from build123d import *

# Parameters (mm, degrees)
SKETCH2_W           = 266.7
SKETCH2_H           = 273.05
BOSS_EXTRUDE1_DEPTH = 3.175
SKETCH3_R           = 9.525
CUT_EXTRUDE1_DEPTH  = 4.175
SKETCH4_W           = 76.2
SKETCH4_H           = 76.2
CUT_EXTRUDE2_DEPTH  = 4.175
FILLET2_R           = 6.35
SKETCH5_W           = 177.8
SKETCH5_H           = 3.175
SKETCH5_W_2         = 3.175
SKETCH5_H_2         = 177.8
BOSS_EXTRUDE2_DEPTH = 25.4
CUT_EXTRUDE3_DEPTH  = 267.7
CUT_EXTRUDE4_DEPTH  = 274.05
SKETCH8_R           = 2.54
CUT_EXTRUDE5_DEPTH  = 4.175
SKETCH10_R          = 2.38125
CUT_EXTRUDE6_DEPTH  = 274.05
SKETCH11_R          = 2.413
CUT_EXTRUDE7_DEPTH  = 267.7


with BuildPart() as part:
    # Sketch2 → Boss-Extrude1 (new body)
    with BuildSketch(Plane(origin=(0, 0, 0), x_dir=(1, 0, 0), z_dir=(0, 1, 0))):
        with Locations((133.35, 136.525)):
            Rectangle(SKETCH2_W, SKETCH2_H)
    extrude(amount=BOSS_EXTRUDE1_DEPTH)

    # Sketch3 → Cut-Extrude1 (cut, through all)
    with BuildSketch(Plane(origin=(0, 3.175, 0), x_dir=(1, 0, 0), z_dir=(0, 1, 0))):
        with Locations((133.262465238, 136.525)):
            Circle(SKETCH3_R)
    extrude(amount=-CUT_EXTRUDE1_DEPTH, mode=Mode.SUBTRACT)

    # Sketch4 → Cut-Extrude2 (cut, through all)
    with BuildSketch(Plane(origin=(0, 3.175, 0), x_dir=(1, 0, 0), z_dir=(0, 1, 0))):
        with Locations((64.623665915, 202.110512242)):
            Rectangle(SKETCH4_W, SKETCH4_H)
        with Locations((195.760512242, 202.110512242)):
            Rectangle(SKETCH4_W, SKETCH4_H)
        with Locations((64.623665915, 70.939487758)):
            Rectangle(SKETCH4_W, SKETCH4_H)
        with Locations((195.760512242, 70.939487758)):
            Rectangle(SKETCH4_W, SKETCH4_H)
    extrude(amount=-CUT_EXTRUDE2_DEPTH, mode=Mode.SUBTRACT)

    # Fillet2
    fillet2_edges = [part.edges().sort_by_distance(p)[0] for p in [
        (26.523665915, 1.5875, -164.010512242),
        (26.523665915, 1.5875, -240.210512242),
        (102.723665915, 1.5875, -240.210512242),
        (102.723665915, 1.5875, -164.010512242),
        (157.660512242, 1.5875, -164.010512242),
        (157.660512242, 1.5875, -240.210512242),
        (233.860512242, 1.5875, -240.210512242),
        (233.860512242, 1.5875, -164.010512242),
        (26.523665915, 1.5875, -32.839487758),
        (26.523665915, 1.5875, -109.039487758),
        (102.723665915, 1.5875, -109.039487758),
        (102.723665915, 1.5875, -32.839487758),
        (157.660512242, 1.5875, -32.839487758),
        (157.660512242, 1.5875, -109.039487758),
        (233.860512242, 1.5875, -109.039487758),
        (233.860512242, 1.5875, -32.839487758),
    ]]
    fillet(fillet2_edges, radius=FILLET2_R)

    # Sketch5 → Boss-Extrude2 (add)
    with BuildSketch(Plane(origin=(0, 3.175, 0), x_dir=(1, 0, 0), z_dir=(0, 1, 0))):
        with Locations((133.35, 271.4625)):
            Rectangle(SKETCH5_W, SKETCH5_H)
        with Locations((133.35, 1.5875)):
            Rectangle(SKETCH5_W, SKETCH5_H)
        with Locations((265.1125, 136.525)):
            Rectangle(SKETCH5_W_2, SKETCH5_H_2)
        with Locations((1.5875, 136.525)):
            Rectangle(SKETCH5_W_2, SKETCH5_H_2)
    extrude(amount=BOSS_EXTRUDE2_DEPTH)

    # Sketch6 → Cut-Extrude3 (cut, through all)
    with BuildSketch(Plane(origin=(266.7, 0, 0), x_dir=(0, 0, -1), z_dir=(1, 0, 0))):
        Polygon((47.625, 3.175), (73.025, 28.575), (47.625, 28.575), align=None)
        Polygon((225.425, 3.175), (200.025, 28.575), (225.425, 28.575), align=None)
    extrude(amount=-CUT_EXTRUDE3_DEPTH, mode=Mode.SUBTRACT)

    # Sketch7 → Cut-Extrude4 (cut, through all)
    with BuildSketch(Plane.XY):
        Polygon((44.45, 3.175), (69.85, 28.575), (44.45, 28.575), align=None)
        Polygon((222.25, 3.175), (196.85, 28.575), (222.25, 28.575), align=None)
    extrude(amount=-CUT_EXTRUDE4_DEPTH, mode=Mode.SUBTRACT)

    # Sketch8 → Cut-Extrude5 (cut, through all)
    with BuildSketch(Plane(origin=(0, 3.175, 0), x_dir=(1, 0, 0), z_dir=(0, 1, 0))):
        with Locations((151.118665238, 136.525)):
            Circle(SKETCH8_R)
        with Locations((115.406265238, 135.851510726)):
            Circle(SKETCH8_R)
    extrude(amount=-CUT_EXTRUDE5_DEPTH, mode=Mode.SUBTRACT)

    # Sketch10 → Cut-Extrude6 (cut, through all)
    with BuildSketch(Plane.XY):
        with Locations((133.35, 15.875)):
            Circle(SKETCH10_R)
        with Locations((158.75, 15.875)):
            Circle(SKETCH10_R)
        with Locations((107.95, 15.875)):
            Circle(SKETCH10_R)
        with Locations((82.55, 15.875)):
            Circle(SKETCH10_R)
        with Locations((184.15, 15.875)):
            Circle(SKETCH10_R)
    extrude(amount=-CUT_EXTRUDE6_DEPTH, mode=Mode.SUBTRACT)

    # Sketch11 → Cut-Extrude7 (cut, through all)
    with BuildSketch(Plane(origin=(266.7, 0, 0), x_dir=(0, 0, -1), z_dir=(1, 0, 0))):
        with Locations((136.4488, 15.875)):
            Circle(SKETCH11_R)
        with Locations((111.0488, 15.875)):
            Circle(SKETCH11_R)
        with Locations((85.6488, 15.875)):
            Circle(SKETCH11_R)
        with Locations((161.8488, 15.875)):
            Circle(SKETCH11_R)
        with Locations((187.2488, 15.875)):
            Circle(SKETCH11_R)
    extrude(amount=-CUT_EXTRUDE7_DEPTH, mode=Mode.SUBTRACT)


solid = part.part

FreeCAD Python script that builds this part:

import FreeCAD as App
import Part
import Sketcher

V = App.Vector
Q = App.Units.Quantity


def edges_at(feature, points):
    """Names of the edges that pass closest to the given points."""
    edges = feature.Shape.Edges
    near = lambda p: min(range(len(edges)), key=lambda i: edges[i].distToShape(Part.Vertex(*p))[0])
    return sorted({f"Edge{near(p) + 1}" for p in points})


def add_polygon(sketch, points):
    """Adds a closed chain of lines whose ends are joined by coincident constraints."""
    first, n = sketch.GeometryCount, len(points)
    for a, b in zip(points, points[1:] + points[:1]):
        sketch.addGeometry(Part.LineSegment(App.Vector(*a, 0), App.Vector(*b, 0)), False)
    for i in range(n):
        sketch.addConstraint(Sketcher.Constraint("Coincident", first + i, 2, first + (i + 1) % n, 1))

doc = App.newDocument("Part")
params = doc.addObject("Spreadsheet::Sheet", "Params")
for row, (alias, value) in enumerate([
    ("sketch1_width", "10.5 in"),
    ("sketch1_height", "10.75 in"),
    ("pad1_length", "0.125 in"),
    ("sketch2_diameter", "0.75 in"),
    ("sketch3_width", "3 in"),
    ("fillet_radius", "0.25 in"),
    ("sketch4_width", "7 in"),
    ("sketch4_width2", "0.125 in"),
    ("pad2_length", "1 in"),
    ("sketch5_width", "1 in"),
    ("sketch6_width", "1 in"),
    ("sketch7_diameter", "0.2 in"),
    ("sketch8_diameter", "0.1875 in"),
    ("sketch9_diameter", "0.19 in"),
], start=1):
    params.set(f"A{row}", alias)
    params.set(f"B{row}", "=" + value)
    params.setAlias(f"B{row}", alias)

body = doc.addObject("PartDesign::Body", "Body")

sketch1 = body.newObject("Sketcher::SketchObject", "Sketch")
sketch1.AttachmentSupport = (doc.getObject("XZ_Plane"), [""])
sketch1.MapMode = "FlatFace"
add_polygon(sketch1, [(0, -273), (0, 0), (267, 0), (267, -273)])
sketch1.addConstraint([
    Sketcher.Constraint("Vertical", 0),
    Sketcher.Constraint("Horizontal", 1),
    Sketcher.Constraint("Vertical", 2),
    Sketcher.Constraint("Horizontal", 3),
    Sketcher.Constraint("Coincident", 0, 2, -1, 1),
    Sketcher.Constraint("DistanceX", 1, 1, 1, 2, Q("10.5 in")),
    Sketcher.Constraint("DistanceY", 0, 1, 0, 2, Q("10.75 in")),
])
sketch1.setExpression("Constraints[9]", "Params.sketch1_width")
sketch1.setExpression("Constraints[10]", "Params.sketch1_height")
pad1 = body.newObject("PartDesign::Pad", "Pad")
pad1.Profile = sketch1
pad1.setExpression("Length", "Params.pad1_length")
pad1.Reversed = True

sketch2 = body.newObject("Sketcher::SketchObject", "Sketch001")
sketch2.AttachmentSupport = (doc.getObject("XZ_Plane"), [""])
sketch2.MapMode = "FlatFace"
sketch2.AttachmentOffset = App.Placement(V(0, 0, -0.125 * 25.4), App.Rotation())
sketch2.addGeometry(Part.Circle(V(133, -137, 0), V(0, 0, 1), 10), False)
sketch2.addConstraint([
    Sketcher.Constraint("Diameter", 0, Q("0.75 in")),
    Sketcher.Constraint("DistanceY", 0, 3, -1, 1, Q("5.375 in")),
    Sketcher.Constraint("DistanceX", -1, 1, 0, 3, 133.262465),
])
sketch2.setExpression("Constraints[0]", "Params.sketch2_diameter")
pocket1 = body.newObject("PartDesign::Pocket", "Pocket")
pocket1.Profile = sketch2
pocket1.Type = "ThroughAll"
pocket1.Reversed = True

sketch3 = body.newObject("Sketcher::SketchObject", "Sketch002")
sketch3.AttachmentSupport = (doc.getObject("XZ_Plane"), [""])
sketch3.MapMode = "FlatFace"
sketch3.AttachmentOffset = App.Placement(V(0, 0, -0.125 * 25.4), App.Rotation())
add_polygon(sketch3, [(27, -240), (27, -164), (103, -164), (103, -240)])
add_polygon(sketch3, [(158, -240), (158, -164), (234, -164), (234, -240)])
add_polygon(sketch3, [(27, -109), (27, -33), (103, -33), (103, -109)])
add_polygon(sketch3, [(158, -109), (158, -33), (234, -33), (234, -109)])
sketch3.addConstraint([
    Sketcher.Constraint("Vertical", 0),
    Sketcher.Constraint("Horizontal", 1),
    Sketcher.Constraint("Vertical", 2),
    Sketcher.Constraint("Horizontal", 3),
    Sketcher.Constraint("Vertical", 4),
    Sketcher.Constraint("Horizontal", 5),
    Sketcher.Constraint("Vertical", 6),
    Sketcher.Constraint("Horizontal", 7),
    Sketcher.Constraint("Vertical", 8),
    Sketcher.Constraint("Horizontal", 9),
    Sketcher.Constraint("Vertical", 10),
    Sketcher.Constraint("Horizontal", 11),
    Sketcher.Constraint("Vertical", 12),
    Sketcher.Constraint("Horizontal", 13),
    Sketcher.Constraint("Vertical", 14),
    Sketcher.Constraint("Horizontal", 15),
    Sketcher.Constraint("Horizontal", 1, 2, 4, 2),
    Sketcher.Constraint("Horizontal", 3, 2, 6, 2),
    Sketcher.Constraint("Horizontal", 9, 2, 12, 2),
    Sketcher.Constraint("Horizontal", 11, 2, 14, 2),
    Sketcher.Constraint("Vertical", 3, 2, 8, 2),
    Sketcher.Constraint("Vertical", 2, 2, 9, 2),
    Sketcher.Constraint("Vertical", 7, 2, 12, 2),
    Sketcher.Constraint("Vertical", 6, 2, 13, 2),
    Sketcher.Constraint("Equal", 3, 5),
    Sketcher.Constraint("Equal", 15, 0),
    Sketcher.Constraint("Equal", 6, 8),
    Sketcher.Constraint("DistanceX", 1, 1, 1, 2, Q("3 in")),
    Sketcher.Constraint("DistanceX", -1, 1, 0, 2, 26.523666),
    Sketcher.Constraint("DistanceY", 0, 2, -1, 1, 164.010512),
    Sketcher.Constraint("DistanceX", -1, 1, 4, 2, 157.660512),
    Sketcher.Constraint("DistanceY", 8, 2, -1, 1, 32.839488),
])
sketch3.setExpression("Constraints[43]", "Params.sketch3_width")
pocket2 = body.newObject("PartDesign::Pocket", "Pocket001")
pocket2.Profile = sketch3
pocket2.Type = "ThroughAll"
pocket2.Reversed = True
doc.recompute()

fillet = body.newObject("PartDesign::Fillet", "Fillet")
fillet.Base = (pocket2, edges_at(pocket2, [
    (26.524, 1.587, -164.011),
    (26.524, 1.587, -240.211),
    (102.724, 1.587, -240.211),
    (102.724, 1.587, -164.011),
    (157.661, 1.587, -164.011),
    (157.661, 1.587, -240.211),
    (233.861, 1.587, -240.211),
    (233.861, 1.587, -164.011),
    (26.524, 1.587, -32.839),
    (26.524, 1.587, -109.039),
    (102.724, 1.587, -109.039),
    (102.724, 1.587, -32.839),
    (157.661, 1.587, -32.839),
    (157.661, 1.587, -109.039),
    (233.861, 1.587, -109.039),
    (233.861, 1.587, -32.839),
]))
fillet.setExpression("Radius", "Params.fillet_radius")

sketch4 = body.newObject("Sketcher::SketchObject", "Sketch003")
sketch4.AttachmentSupport = (doc.getObject("XZ_Plane"), [""])
sketch4.MapMode = "FlatFace"
sketch4.AttachmentOffset = App.Placement(V(0, 0, -0.125 * 25.4), App.Rotation())
add_polygon(sketch4, [(44.5, -273.1), (44.5, -269.9), (222.2, -269.9), (222.2, -273.1)])
add_polygon(sketch4, [(44.5, -3.2), (44.5, 0), (222.2, 0), (222.2, -3.2)])
add_polygon(sketch4, [(263.5, -225.4), (263.5, -47.6), (266.7, -47.6), (266.7, -225.4)])
add_polygon(sketch4, [(0, -225.4), (0, -47.6), (3.2, -47.6), (3.2, -225.4)])
sketch4.addConstraint([
    Sketcher.Constraint("Vertical", 0),
    Sketcher.Constraint("Horizontal", 1),
    Sketcher.Constraint("Vertical", 2),
    Sketcher.Constraint("Horizontal", 3),
    Sketcher.Constraint("Vertical", 4),
    Sketcher.Constraint("Horizontal", 5),
    Sketcher.Constraint("Vertical", 6),
    Sketcher.Constraint("Horizontal", 7),
    Sketcher.Constraint("Vertical", 8),
    Sketcher.Constraint("Horizontal", 9),
    Sketcher.Constraint("Vertical", 10),
    Sketcher.Constraint("Horizontal", 11),
    Sketcher.Constraint("Vertical", 12),
    Sketcher.Constraint("Horizontal", 13),
    Sketcher.Constraint("Vertical", 14),
    Sketcher.Constraint("Horizontal", 15),
    Sketcher.Constraint("PointOnObject", 4, 2, -1),
    Sketcher.Constraint("PointOnObject", 12, 2, -2),
    Sketcher.Constraint("Horizontal", 9, 2, 12, 2),
    Sketcher.Constraint("Horizontal", 11, 2, 14, 2),
    Sketcher.Constraint("Vertical", 3, 2, 4, 2),
    Sketcher.Constraint("Vertical", 2, 2, 5, 2),
    Sketcher.Constraint("Equal", 11, 13),
    Sketcher.Constraint("Equal", 15, 0),
    Sketcher.Constraint("Equal", 2, 4),
    Sketcher.Constraint("Equal", 7, 8),
    Sketcher.Constraint("DistanceX", 1, 1, 1, 2, Q("7 in")),
    Sketcher.Constraint("DistanceX", -1, 1, 9, 2, Q("10.5 in")),
    Sketcher.Constraint("DistanceY", 1, 2, 6, 2, Q("10.5 in")),
    Sketcher.Constraint("DistanceX", 9, 1, 9, 2, Q("0.125 in")),
    Sketcher.Constraint("DistanceX", -1, 1, 0, 2, Q("1.75 in")),
    Sketcher.Constraint("DistanceY", 8, 2, 6, 2, Q("1.75 in")),
])
sketch4.setExpression("Constraints[42]", "Params.sketch4_width")
sketch4.setExpression("Constraints[45]", "Params.sketch4_width2")
pad2 = body.newObject("PartDesign::Pad", "Pad001")
pad2.Profile = sketch4
pad2.setExpression("Length", "Params.pad2_length")
pad2.Reversed = True

sketch5 = body.newObject("Sketcher::SketchObject", "Sketch004")
sketch5.AttachmentSupport = (doc.getObject("YZ_Plane"), [""])
sketch5.MapMode = "FlatFace"
sketch5.AttachmentOffset = App.Placement(V(0, 0, 10.5 * 25.4), App.Rotation())
add_polygon(sketch5, [(3, -48), (29, -73), (29, -48)])
add_polygon(sketch5, [(29, -200), (3, -225), (29, -225)])
sketch5.addConstraint([
    Sketcher.Constraint("Vertical", 1),
    Sketcher.Constraint("Horizontal", 2),
    Sketcher.Constraint("Horizontal", 4),
    Sketcher.Constraint("Vertical", 5),
    Sketcher.Constraint("Perpendicular", 0, 3),
    Sketcher.Constraint("Vertical", 2, 2, 3, 2),
    Sketcher.Constraint("Vertical", 1, 2, 4, 2),
    Sketcher.Constraint("Equal", 4, 1),
    Sketcher.Constraint("DistanceX", 2, 2, 2, 1, Q("1 in")),
    Sketcher.Constraint("DistanceY", 3, 2, 0, 2, Q("6 in")),
    Sketcher.Constraint("DistanceX", -1, 1, 0, 2, Q("1.125 in")),
    Sketcher.Constraint("DistanceY", 0, 2, -1, 1, Q("2.875 in")),
])
sketch5.setExpression("Constraints[14]", "Params.sketch5_width")
pocket3 = body.newObject("PartDesign::Pocket", "Pocket002")
pocket3.Profile = sketch5
pocket3.Type = "ThroughAll"

sketch6 = body.newObject("Sketcher::SketchObject", "Sketch005")
sketch6.AttachmentSupport = (doc.getObject("XY_Plane"), [""])
sketch6.MapMode = "FlatFace"
add_polygon(sketch6, [(44, 3), (70, 29), (44, 29)])
add_polygon(sketch6, [(197, 29), (222, 3), (222, 29)])
sketch6.addConstraint([
    Sketcher.Constraint("Horizontal", 1),
    Sketcher.Constraint("Vertical", 2),
    Sketcher.Constraint("Vertical", 4),
    Sketcher.Constraint("Horizontal", 5),
    Sketcher.Constraint("Perpendicular", 0, 3),
    Sketcher.Constraint("Horizontal", 2, 2, 3, 2),
    Sketcher.Constraint("Horizontal", 1, 2, 4, 2),
    Sketcher.Constraint("Equal", 1, 5),
    Sketcher.Constraint("DistanceX", 1, 2, 1, 1, Q("1 in")),
    Sketcher.Constraint("DistanceX", 0, 2, 3, 2, Q("6 in")),
    Sketcher.Constraint("DistanceX", -1, 1, 0, 2, Q("2.75 in")),
    Sketcher.Constraint("DistanceY", -1, 1, 0, 2, Q("1.125 in")),
])
sketch6.setExpression("Constraints[14]", "Params.sketch6_width")
pocket4 = body.newObject("PartDesign::Pocket", "Pocket003")
pocket4.Profile = sketch6
pocket4.Type = "ThroughAll"

sketch7 = body.newObject("Sketcher::SketchObject", "Sketch006")
sketch7.AttachmentSupport = (doc.getObject("XZ_Plane"), [""])
sketch7.MapMode = "FlatFace"
sketch7.AttachmentOffset = App.Placement(V(0, 0, -0.125 * 25.4), App.Rotation())
sketch7.addGeometry([
    Part.Circle(V(151.1, -136.5, 0), V(0, 0, 1), 2.5),
    Part.Circle(V(115.4, -135.9, 0), V(0, 0, 1), 2.5),
], False)
sketch7.addConstraint([
    Sketcher.Constraint("Equal", 0, 1),
    Sketcher.Constraint("Diameter", 0, Q("0.2 in")),
    Sketcher.Constraint("DistanceY", 0, 3, -1, 1, Q("5.375 in")),
    Sketcher.Constraint("DistanceX", 1, 3, 0, 3, Q("1.406 in")),
    Sketcher.Constraint("DistanceY", 1, 3, -1, 1, 135.851511),
    Sketcher.Constraint("DistanceX", -1, 1, 0, 3, 151.118665),
])
sketch7.setExpression("Constraints[1]", "Params.sketch7_diameter")
pocket5 = body.newObject("PartDesign::Pocket", "Pocket004")
pocket5.Profile = sketch7
pocket5.Type = "ThroughAll"
pocket5.Reversed = True

sketch8 = body.newObject("Sketcher::SketchObject", "Sketch007")
sketch8.AttachmentSupport = (doc.getObject("XY_Plane"), [""])
sketch8.MapMode = "FlatFace"
sketch8.addGeometry([
    Part.Circle(V(133.3, 15.9, 0), V(0, 0, 1), 2.4),
    Part.Circle(V(158.8, 15.9, 0), V(0, 0, 1), 2.4),
    Part.Circle(V(108, 15.9, 0), V(0, 0, 1), 2.4),
    Part.Circle(V(82.5, 15.9, 0), V(0, 0, 1), 2.4),
    Part.Circle(V(184.2, 15.9, 0), V(0, 0, 1), 2.4),
], False)
sketch8.addConstraint([
    Sketcher.Constraint("Equal", 0, 1),
    Sketcher.Constraint("Equal", 1, 2),
    Sketcher.Constraint("Equal", 2, 3),
    Sketcher.Constraint("Equal", 3, 4),
    Sketcher.Constraint("Horizontal", 0, 3, 1, 3),
    Sketcher.Constraint("Horizontal", 1, 3, 2, 3),
    Sketcher.Constraint("Horizontal", 2, 3, 3, 3),
    Sketcher.Constraint("Horizontal", 3, 3, 4, 3),
    Sketcher.Constraint("Diameter", 0, Q("0.1875 in")),
    Sketcher.Constraint("DistanceX", 0, 3, 1, 3, Q("1 in")),
    Sketcher.Constraint("DistanceX", 2, 3, 0, 3, Q("1 in")),
    Sketcher.Constraint("DistanceX", 3, 3, 2, 3, Q("1 in")),
    Sketcher.Constraint("DistanceX", 1, 3, 4, 3, Q("1 in")),
    Sketcher.Constraint("DistanceX", -1, 1, 0, 3, Q("5.25 in")),
    Sketcher.Constraint("DistanceY", -1, 1, 0, 3, Q("0.625 in")),
])
sketch8.setExpression("Constraints[8]", "Params.sketch8_diameter")
pocket6 = body.newObject("PartDesign::Pocket", "Pocket005")
pocket6.Profile = sketch8
pocket6.Type = "ThroughAll"

sketch9 = body.newObject("Sketcher::SketchObject", "Sketch008")
sketch9.AttachmentSupport = (doc.getObject("YZ_Plane"), [""])
sketch9.MapMode = "FlatFace"
sketch9.AttachmentOffset = App.Placement(V(0, 0, 10.5 * 25.4), App.Rotation())
sketch9.addGeometry([
    Part.Circle(V(15.9, -136.4, 0), V(0, 0, 1), 2.4),
    Part.Circle(V(15.9, -111, 0), V(0, 0, 1), 2.4),
    Part.Circle(V(15.9, -85.6, 0), V(0, 0, 1), 2.4),
    Part.Circle(V(15.9, -161.8, 0), V(0, 0, 1), 2.4),
    Part.Circle(V(15.9, -187.2, 0), V(0, 0, 1), 2.4),
], False)
sketch9.addConstraint([
    Sketcher.Constraint("Equal", 0, 1),
    Sketcher.Constraint("Equal", 1, 2),
    Sketcher.Constraint("Equal", 2, 3),
    Sketcher.Constraint("Equal", 3, 4),
    Sketcher.Constraint("Vertical", 0, 3, 1, 3),
    Sketcher.Constraint("Vertical", 1, 3, 2, 3),
    Sketcher.Constraint("Vertical", 2, 3, 3, 3),
    Sketcher.Constraint("Vertical", 3, 3, 4, 3),
    Sketcher.Constraint("Diameter", 0, Q("0.19 in")),
    Sketcher.Constraint("DistanceY", 0, 3, 1, 3, Q("1 in")),
    Sketcher.Constraint("DistanceY", 1, 3, 2, 3, Q("1 in")),
    Sketcher.Constraint("DistanceY", 3, 3, 0, 3, Q("1 in")),
    Sketcher.Constraint("DistanceY", 4, 3, 3, 3, Q("1 in")),
    Sketcher.Constraint("DistanceX", -1, 1, 0, 3, Q("0.625 in")),
    Sketcher.Constraint("DistanceY", 0, 3, -1, 1, Q("5.372 in")),
])
sketch9.setExpression("Constraints[8]", "Params.sketch9_diameter")
pocket7 = body.newObject("PartDesign::Pocket", "Pocket006")
pocket7.Profile = sketch9
pocket7.Type = "ThroughAll"

doc.recompute()
